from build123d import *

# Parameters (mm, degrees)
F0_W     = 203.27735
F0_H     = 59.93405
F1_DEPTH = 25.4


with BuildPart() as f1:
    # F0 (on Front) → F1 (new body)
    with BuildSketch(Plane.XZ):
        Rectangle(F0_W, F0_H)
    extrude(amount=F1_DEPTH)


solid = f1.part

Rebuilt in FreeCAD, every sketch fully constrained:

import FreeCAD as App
import Part
import Sketcher
Q = App.Units.Quantity

doc = App.newDocument("Part")
body = doc.addObject("PartDesign::Body", "Body")

# Sketch on XZ plane
sketch1 = body.newObject("Sketcher::SketchObject", "Sketch")
sketch1.AttachmentSupport = (doc.getObject("XZ_Plane"), [""])
sketch1.MapMode = "FlatFace"
sketch1.addGeometry(Part.LineSegment(App.Vector(-102, 30, 0), App.Vector(-102, -30, 0)), False)
sketch1.addGeometry(Part.LineSegment(App.Vector(-102, -30, 0), App.Vector(102, -30, 0)), False)
sketch1.addGeometry(Part.LineSegment(App.Vector(102, -30, 0), App.Vector(102, 30, 0)), False)
sketch1.addGeometry(Part.LineSegment(App.Vector(102, 30, 0), App.Vector(-102, 30, 0)), False)
sketch1.addConstraint(Sketcher.Constraint("Coincident", 0, 2, 1, 1))
sketch1.addConstraint(Sketcher.Constraint("Coincident", 1, 2, 2, 1))
sketch1.addConstraint(Sketcher.Constraint("Coincident", 2, 2, 3, 1))
sketch1.addConstraint(Sketcher.Constraint("Coincident", 3, 2, 0, 1))
sketch1.addConstraint(Sketcher.Constraint("Vertical", 0))
sketch1.addConstraint(Sketcher.Constraint("Horizontal", 1))
sketch1.addConstraint(Sketcher.Constraint("Vertical", 2))
sketch1.addConstraint(Sketcher.Constraint("Horizontal", 3))
sketch1.addConstraint(Sketcher.Constraint("Symmetric", 0, 2, 2, 2, -1, 1))
sketch1.addConstraint(Sketcher.Constraint("DistanceX", 1, 1, 1, 2, Q("203.27735 mm")))
sketch1.addConstraint(Sketcher.Constraint("DistanceY", 0, 2, 0, 1, Q("59.93405 mm")))
pad1 = body.newObject("PartDesign::Pad", "Pad")
pad1.Profile = sketch1
pad1.Length = Q("1 in")

doc.recompute()
